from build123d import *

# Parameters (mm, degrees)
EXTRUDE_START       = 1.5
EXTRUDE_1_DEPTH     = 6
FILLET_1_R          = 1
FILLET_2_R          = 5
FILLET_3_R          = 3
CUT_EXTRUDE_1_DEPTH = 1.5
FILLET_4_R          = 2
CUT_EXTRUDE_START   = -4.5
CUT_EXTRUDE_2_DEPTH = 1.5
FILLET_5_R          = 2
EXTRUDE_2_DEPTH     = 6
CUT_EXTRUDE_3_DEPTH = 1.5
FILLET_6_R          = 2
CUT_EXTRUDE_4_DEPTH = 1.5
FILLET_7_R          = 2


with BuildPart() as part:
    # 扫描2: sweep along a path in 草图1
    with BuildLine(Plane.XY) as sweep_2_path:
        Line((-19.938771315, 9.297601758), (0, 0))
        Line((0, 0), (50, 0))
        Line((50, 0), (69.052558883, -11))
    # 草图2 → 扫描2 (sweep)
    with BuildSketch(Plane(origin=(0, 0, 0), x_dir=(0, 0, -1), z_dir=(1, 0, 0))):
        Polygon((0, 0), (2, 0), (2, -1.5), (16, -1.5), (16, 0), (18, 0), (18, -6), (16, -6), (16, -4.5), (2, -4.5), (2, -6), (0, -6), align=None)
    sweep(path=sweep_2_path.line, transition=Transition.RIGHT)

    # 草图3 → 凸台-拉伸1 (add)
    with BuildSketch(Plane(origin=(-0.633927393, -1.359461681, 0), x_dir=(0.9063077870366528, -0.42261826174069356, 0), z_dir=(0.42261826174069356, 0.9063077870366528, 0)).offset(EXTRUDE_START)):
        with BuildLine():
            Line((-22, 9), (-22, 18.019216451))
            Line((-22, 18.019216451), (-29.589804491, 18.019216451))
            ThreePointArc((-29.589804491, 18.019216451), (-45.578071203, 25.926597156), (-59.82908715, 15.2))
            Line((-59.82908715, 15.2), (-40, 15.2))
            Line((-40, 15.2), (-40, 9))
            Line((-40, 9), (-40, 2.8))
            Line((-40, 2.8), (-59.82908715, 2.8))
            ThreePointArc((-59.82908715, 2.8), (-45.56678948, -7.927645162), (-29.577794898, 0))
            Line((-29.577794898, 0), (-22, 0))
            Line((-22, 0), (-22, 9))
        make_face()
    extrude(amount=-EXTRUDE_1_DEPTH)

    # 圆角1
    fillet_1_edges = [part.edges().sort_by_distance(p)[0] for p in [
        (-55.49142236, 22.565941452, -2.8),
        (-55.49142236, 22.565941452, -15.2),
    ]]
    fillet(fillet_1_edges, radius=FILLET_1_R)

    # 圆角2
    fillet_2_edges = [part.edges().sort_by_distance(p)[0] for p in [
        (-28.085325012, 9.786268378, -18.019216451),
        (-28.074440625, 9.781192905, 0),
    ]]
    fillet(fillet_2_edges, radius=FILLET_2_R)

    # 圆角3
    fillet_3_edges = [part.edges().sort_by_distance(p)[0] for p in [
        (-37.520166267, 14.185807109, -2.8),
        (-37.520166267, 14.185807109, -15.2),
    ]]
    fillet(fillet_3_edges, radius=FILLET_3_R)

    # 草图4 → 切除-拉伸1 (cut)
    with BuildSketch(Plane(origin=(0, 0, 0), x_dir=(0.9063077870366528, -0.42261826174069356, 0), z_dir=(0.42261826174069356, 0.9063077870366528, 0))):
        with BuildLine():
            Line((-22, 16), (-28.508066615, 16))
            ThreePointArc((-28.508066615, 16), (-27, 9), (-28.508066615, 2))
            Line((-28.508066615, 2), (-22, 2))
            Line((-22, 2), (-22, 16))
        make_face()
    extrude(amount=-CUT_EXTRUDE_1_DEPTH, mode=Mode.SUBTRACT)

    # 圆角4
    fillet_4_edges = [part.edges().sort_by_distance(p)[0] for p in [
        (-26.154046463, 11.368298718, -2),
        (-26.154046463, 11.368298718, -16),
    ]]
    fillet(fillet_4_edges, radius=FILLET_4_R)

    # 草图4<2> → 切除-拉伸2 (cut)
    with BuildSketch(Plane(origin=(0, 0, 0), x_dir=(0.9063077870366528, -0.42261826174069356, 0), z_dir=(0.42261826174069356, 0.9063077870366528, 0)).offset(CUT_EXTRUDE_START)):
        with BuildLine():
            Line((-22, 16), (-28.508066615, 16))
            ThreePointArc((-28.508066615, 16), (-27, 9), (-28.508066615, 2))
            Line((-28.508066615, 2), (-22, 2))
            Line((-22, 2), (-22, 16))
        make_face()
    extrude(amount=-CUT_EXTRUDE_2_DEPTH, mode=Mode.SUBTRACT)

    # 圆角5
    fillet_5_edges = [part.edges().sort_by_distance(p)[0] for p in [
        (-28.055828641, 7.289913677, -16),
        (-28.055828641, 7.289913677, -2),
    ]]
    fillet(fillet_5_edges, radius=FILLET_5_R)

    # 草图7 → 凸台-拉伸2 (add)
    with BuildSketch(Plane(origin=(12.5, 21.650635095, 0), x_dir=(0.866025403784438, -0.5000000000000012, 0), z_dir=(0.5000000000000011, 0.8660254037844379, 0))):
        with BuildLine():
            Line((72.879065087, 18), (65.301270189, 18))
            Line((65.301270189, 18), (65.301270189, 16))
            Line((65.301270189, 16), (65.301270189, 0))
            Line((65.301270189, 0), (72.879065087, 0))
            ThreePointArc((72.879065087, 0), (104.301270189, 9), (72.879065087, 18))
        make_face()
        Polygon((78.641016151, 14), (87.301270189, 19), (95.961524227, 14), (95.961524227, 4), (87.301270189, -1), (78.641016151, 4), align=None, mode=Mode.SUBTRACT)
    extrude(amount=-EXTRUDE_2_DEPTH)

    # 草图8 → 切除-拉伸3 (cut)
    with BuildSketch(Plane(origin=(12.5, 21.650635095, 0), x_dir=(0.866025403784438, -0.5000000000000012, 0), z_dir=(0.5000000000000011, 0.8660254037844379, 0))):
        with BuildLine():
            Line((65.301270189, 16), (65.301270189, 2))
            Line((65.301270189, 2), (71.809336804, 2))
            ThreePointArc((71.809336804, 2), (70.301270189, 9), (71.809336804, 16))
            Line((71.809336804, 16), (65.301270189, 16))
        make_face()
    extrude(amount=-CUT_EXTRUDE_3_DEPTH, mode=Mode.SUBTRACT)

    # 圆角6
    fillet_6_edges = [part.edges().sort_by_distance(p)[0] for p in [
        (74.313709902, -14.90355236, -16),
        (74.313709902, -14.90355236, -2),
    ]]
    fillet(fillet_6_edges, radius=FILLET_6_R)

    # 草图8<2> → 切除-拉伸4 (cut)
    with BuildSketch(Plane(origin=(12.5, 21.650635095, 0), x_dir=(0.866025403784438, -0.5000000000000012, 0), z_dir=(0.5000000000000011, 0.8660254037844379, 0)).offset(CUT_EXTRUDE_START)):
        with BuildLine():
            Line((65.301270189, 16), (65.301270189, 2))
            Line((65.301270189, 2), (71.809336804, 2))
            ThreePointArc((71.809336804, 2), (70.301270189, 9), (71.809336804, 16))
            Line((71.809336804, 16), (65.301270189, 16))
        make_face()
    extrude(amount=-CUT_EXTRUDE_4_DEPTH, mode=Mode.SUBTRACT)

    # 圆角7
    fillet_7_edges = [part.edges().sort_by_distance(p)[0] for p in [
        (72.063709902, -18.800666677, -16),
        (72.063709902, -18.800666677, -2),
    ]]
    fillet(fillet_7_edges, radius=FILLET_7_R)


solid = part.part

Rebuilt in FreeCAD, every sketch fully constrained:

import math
import FreeCAD as App
import Part
import Sketcher
from FreeCAD import Vector
Q = App.Units.Quantity


def edges_at(feature, points):
    """Names of the edges that pass closest to the given points."""
    edges = feature.Shape.Edges
    near = lambda p: min(range(len(edges)), key=lambda i: edges[i].distToShape(Part.Vertex(*p))[0])
    return sorted({f"Edge{near(p) + 1}" for p in points})

doc = App.newDocument("Part")
body = doc.addObject("PartDesign::Body", "Body")

# Sketch on YZ plane
sketch1 = body.newObject("Sketcher::SketchObject", "Sketch")
sketch1.AttachmentSupport = (doc.getObject("YZ_Plane"), [""])
sketch1.MapMode = "FlatFace"
sketch1.addGeometry(Part.LineSegment(Vector(0, -2, 0), Vector(0, 0, 0)), False)
sketch1.addGeometry(Part.LineSegment(Vector(0, 0, 0), Vector(-6, 0, 0)), False)
sketch1.addGeometry(Part.LineSegment(Vector(-6, 0, 0), Vector(-6, -2, 0)), False)
sketch1.addGeometry(Part.LineSegment(Vector(-6, -2, 0), Vector(-4.5, -2, 0)), False)
sketch1.addGeometry(Part.LineSegment(Vector(-4.5, -2, 0), Vector(-4.5, -16, 0)), False)
sketch1.addGeometry(Part.LineSegment(Vector(-4.5, -16, 0), Vector(-6, -16, 0)), False)
sketch1.addGeometry(Part.LineSegment(Vector(-6, -16, 0), Vector(-6, -18, 0)), False)
sketch1.addGeometry(Part.LineSegment(Vector(-6, -18, 0), Vector(0, -18, 0)), False)
sketch1.addGeometry(Part.LineSegment(Vector(0, -18, 0), Vector(0, -16, 0)), False)
sketch1.addGeometry(Part.LineSegment(Vector(0, -16, 0), Vector(-1.5, -16, 0)), False)
sketch1.addGeometry(Part.LineSegment(Vector(-1.5, -16, 0), Vector(-1.5, -2, 0)), False)
sketch1.addGeometry(Part.LineSegment(Vector(-1.5, -2, 0), Vector(0, -2, 0)), False)
sketch1.addConstraint(Sketcher.Constraint("Coincident", 0, 2, 1, 1))
sketch1.addConstraint(Sketcher.Constraint("Coincident", 1, 2, 2, 1))
sketch1.addConstraint(Sketcher.Constraint("Coincident", 2, 2, 3, 1))
sketch1.addConstraint(Sketcher.Constraint("Coincident", 3, 2, 4, 1))
sketch1.addConstraint(Sketcher.Constraint("Coincident", 4, 2, 5, 1))
sketch1.addConstraint(Sketcher.Constraint("Coincident", 5, 2, 6, 1))
sketch1.addConstraint(Sketcher.Constraint("Coincident", 6, 2, 7, 1))
sketch1.addConstraint(Sketcher.Constraint("Coincident", 7, 2, 8, 1))
sketch1.addConstraint(Sketcher.Constraint("Coincident", 8, 2, 9, 1))
sketch1.addConstraint(Sketcher.Constraint("Coincident", 9, 2, 10, 1))
sketch1.addConstraint(Sketcher.Constraint("Coincident", 10, 2, 11, 1))
sketch1.addConstraint(Sketcher.Constraint("Coincident", 11, 2, 0, 1))
sketch1.addConstraint(Sketcher.Constraint("Vertical", 0))
sketch1.addConstraint(Sketcher.Constraint("Horizontal", 1))
sketch1.addConstraint(Sketcher.Constraint("Vertical", 2))
sketch1.addConstraint(Sketcher.Constraint("Horizontal", 3))
sketch1.addConstraint(Sketcher.Constraint("Vertical", 4))
sketch1.addConstraint(Sketcher.Constraint("Horizontal", 5))
sketch1.addConstraint(Sketcher.Constraint("Vertical", 6))
sketch1.addConstraint(Sketcher.Constraint("Horizontal", 7))
sketch1.addConstraint(Sketcher.Constraint("Vertical", 8))
sketch1.addConstraint(Sketcher.Constraint("Horizontal", 9))
sketch1.addConstraint(Sketcher.Constraint("Vertical", 10))
sketch1.addConstraint(Sketcher.Constraint("Horizontal", 11))
sketch1.addConstraint(Sketcher.Constraint("Coincident", 0, 2, -1, 1))
sketch1.addConstraint(Sketcher.Constraint("PointOnObject", 7, 2, -2))
sketch1.addConstraint(Sketcher.Constraint("Horizontal", 5, 2, 8, 2))
sketch1.addConstraint(Sketcher.Constraint("Horizontal", 3, 2, 10, 2))
sketch1.addConstraint(Sketcher.Constraint("Vertical", 2, 2, 5, 2))
sketch1.addConstraint(Sketcher.Constraint("Equal", 5, 9))
sketch1.addConstraint(Sketcher.Constraint("Equal", 2, 6))
sketch1.addConstraint(Sketcher.Constraint("DistanceX", 1, 2, 1, 1, 6.0))
sketch1.addConstraint(Sketcher.Constraint("DistanceY", 0, 1, 0, 2, 2.0))
sketch1.addConstraint(Sketcher.Constraint("DistanceY", 4, 2, 4, 1, 14.0))
sketch1.addConstraint(Sketcher.Constraint("DistanceX", 3, 1, 3, 2, 1.5))

# Sketch on XY plane
sketch2 = body.newObject("Sketcher::SketchObject", "Sketch001")
sketch2.AttachmentSupport = (doc.getObject("XY_Plane"), [""])
sketch2.MapMode = "FlatFace"
sketch2.addGeometry(Part.LineSegment(Vector(-19.938771, 9.297602, 0), Vector(0, 0, 0)), False)
sketch2.addGeometry(Part.LineSegment(Vector(0, 0, 0), Vector(50, 0, 0)), False)
sketch2.addGeometry(Part.LineSegment(Vector(50, 0, 0), Vector(69.052559, -11, 0)), False)
sketch2.addConstraint(Sketcher.Constraint("Coincident", 0, 2, 1, 1))
sketch2.addConstraint(Sketcher.Constraint("Coincident", 1, 2, 2, 1))
sketch2.addConstraint(Sketcher.Constraint("Horizontal", 1))
sketch2.addConstraint(Sketcher.Constraint("Coincident", 0, 2, -1, 1))
sketch2.addConstraint(Sketcher.Constraint("Equal", 0, 2))
sketch2.addConstraint(Sketcher.Constraint("DistanceX", 1, 1, 1, 2, 50.0))
sketch2.addConstraint(Sketcher.Constraint("Angle", 0, Q("-25 deg")))
sketch2.addConstraint(Sketcher.Constraint("Angle", 2, Q("-30 deg")))
sketch2.addConstraint(Sketcher.Constraint("Distance", 0, 22.0))
doc.recompute()

additivepipe = body.newObject("PartDesign::AdditivePipe", "AdditivePipe")
additivepipe.Profile = sketch1
additivepipe.Spine = (sketch2, ["Edge1", "Edge2", "Edge3"])
additivepipe.Transition = "Right corner"

# Sketch on an angled plane
sketch3 = body.newObject("Sketcher::SketchObject", "Sketch002")
sketch3.Placement = App.Placement(Vector(0, 0, 0), App.Rotation(Vector(0.906307787, -0.422618262, 0), Vector(0, 0, -1), Vector(0.422618262, 0.906307787, 0), "ZXY"))
sketch3.addGeometry(Part.LineSegment(Vector(-22, 18.019216, 0), Vector(-29.589804, 18.019216, 0)), False)
sketch3.addGeometry(Part.ArcOfCircle(Part.Circle(Vector(-44, 9, 0), Vector(0, 0, 1), 17), math.radians(32.042093), math.radians(158.610517)), False)
sketch3.addGeometry(Part.LineSegment(Vector(-59.829087, 15.2, 0), Vector(-40, 15.2, 0)), False)
sketch3.addGeometry(Part.LineSegment(Vector(-40, 15.2, 0), Vector(-40, 2.8, 0)), False)
sketch3.addGeometry(Part.LineSegment(Vector(-40, 2.8, 0), Vector(-59.829087, 2.8, 0)), False)
sketch3.addGeometry(Part.ArcOfCircle(Part.Circle(Vector(-44, 9, 0), Vector(0, 0, 1), 17), math.radians(-158.610517), math.radians(-31.965719)), False)
sketch3.addGeometry(Part.LineSegment(Vector(-29.577795, 0, 0), Vector(-22, 0, 0)), False)
sketch3.addGeometry(Part.LineSegment(Vector(-22, 0, 0), Vector(-22, 18.019216, 0)), False)
sketch3.addConstraint(Sketcher.Constraint("Coincident", 0, 2, 1, 1))
sketch3.addConstraint(Sketcher.Constraint("Coincident", 1, 2, 2, 1))
sketch3.addConstraint(Sketcher.Constraint("Coincident", 2, 2, 3, 1))
sketch3.addConstraint(Sketcher.Constraint("Coincident", 3, 2, 4, 1))
sketch3.addConstraint(Sketcher.Constraint("Coincident", 4, 2, 5, 1))
sketch3.addConstraint(Sketcher.Constraint("Coincident", 5, 2, 6, 1))
sketch3.addConstraint(Sketcher.Constraint("Coincident", 6, 2, 7, 1))
sketch3.addConstraint(Sketcher.Constraint("Coincident", 7, 2, 0, 1))
sketch3.addConstraint(Sketcher.Constraint("Horizontal", 0))
sketch3.addConstraint(Sketcher.Constraint("Horizontal", 2))
sketch3.addConstraint(Sketcher.Constraint("Vertical", 3))
sketch3.addConstraint(Sketcher.Constraint("Horizontal", 4))
sketch3.addConstraint(Sketcher.Constraint("Horizontal", 6))
sketch3.addConstraint(Sketcher.Constraint("Vertical", 7))
sketch3.addConstraint(Sketcher.Constraint("Coincident", 5, 3, 1, 3))
sketch3.addConstraint(Sketcher.Constraint("Equal", 1, 5))
sketch3.addConstraint(Sketcher.Constraint("PointOnObject", 5, 2, -1))
sketch3.addConstraint(Sketcher.Constraint("Vertical", 1, 2, 4, 2))
sketch3.addConstraint(Sketcher.Constraint("Radius", 1, 17.0))
sketch3.addConstraint(Sketcher.Constraint("DistanceY", 3, 2, 3, 1, 12.4))
sketch3.addConstraint(Sketcher.Constraint("DistanceX", 1, 3, -1, 1, 44.0))
sketch3.addConstraint(Sketcher.Constraint("DistanceY", -1, 1, 1, 3, 9.0))
sketch3.addConstraint(Sketcher.Constraint("DistanceX", 2, 2, -1, 1, 40.0))
sketch3.addConstraint(Sketcher.Constraint("DistanceX", 6, 2, -1, 1, 22.0))
sketch3.addConstraint(Sketcher.Constraint("DistanceX", 0, 2, 0, 1, 7.589804))
pad1 = body.newObject("PartDesign::Pad", "Pad")
pad1.Profile = sketch3
pad1.Length = 6
pad1.Reversed = True
doc.recompute()

fillet = body.newObject("PartDesign::Fillet", "Fillet")
fillet.Base = (pad1, edges_at(pad1, [(-55.491, 22.566, -2.8), (-55.491, 22.566, -15.2)]))
fillet.Radius = 1
doc.recompute()

fillet2 = body.newObject("PartDesign::Fillet", "Fillet001")
fillet2.Base = (fillet, edges_at(fillet, [(-28.085, 9.786, -18.019), (-28.074, 9.781, 0)]))
fillet2.Radius = 5
doc.recompute()

fillet3 = body.newObject("PartDesign::Fillet", "Fillet002")
fillet3.Base = (fillet2, edges_at(fillet2, [(-37.52, 14.186, -2.8), (-37.52, 14.186, -15.2)]))
fillet3.Radius = 3

# Sketch on an angled plane
sketch4 = body.newObject("Sketcher::SketchObject", "Sketch003")
sketch4.Placement = App.Placement(Vector(0, 0, 0), App.Rotation(Vector(0.906307787, -0.422618262, 0), Vector(0, 0, -1), Vector(0.422618262, 0.906307787, 0), "ZXY"))
sketch4.addGeometry(Part.LineSegment(Vector(-22, 16, 0), Vector(-28.508067, 16, 0)), False)
sketch4.addGeometry(Part.ArcOfCircle(Part.Circle(Vector(-44, 9, 0), Vector(0, 0, 1), 17), math.radians(-24.315739), math.radians(24.315739)), False)
sketch4.addGeometry(Part.LineSegment(Vector(-28.508067, 2, 0), Vector(-22, 2, 0)), False)
sketch4.addGeometry(Part.LineSegment(Vector(-22, 2, 0), Vector(-22, 16, 0)), False)
sketch4.addConstraint(Sketcher.Constraint("Coincident", 0, 2, 1, 2))
sketch4.addConstraint(Sketcher.Constraint("Coincident", 1, 1, 2, 1))
sketch4.addConstraint(Sketcher.Constraint("Coincident", 2, 2, 3, 1))
sketch4.addConstraint(Sketcher.Constraint("Coincident", 3, 2, 0, 1))
sketch4.addConstraint(Sketcher.Constraint("Horizontal", 0))
sketch4.addConstraint(Sketcher.Constraint("Horizontal", 2))
sketch4.addConstraint(Sketcher.Constraint("Vertical", 3))
sketch4.addConstraint(Sketcher.Constraint("Vertical", 0, 2, 1, 1))
sketch4.addConstraint(Sketcher.Constraint("Radius", 1, 17.0))
sketch4.addConstraint(Sketcher.Constraint("DistanceY", 3, 1, 3, 2, 14.0))
sketch4.addConstraint(Sketcher.Constraint("DistanceX", 1, 3, -1, 1, 44.0))
sketch4.addConstraint(Sketcher.Constraint("DistanceY", -1, 1, 1, 3, 9.0))
sketch4.addConstraint(Sketcher.Constraint("DistanceX", 2, 2, -1, 1, 22.0))
pocket1 = body.newObject("PartDesign::Pocket", "Pocket")
pocket1.Profile = sketch4
pocket1.Length = 1.5
doc.recompute()

fillet4 = body.newObject("PartDesign::Fillet", "Fillet003")
fillet4.Base = (pocket1, edges_at(pocket1, [(-26.154, 11.368, -2), (-26.154, 11.368, -16)]))
fillet4.Radius = 2

# Sketch on an angled plane
sketch5 = body.newObject("Sketcher::SketchObject", "Sketch004")
sketch5.Placement = App.Placement(Vector(-1.901782, -4.078385, 0), App.Rotation(Vector(0.906307787, -0.422618262, 0), Vector(0, 0, -1), Vector(0.422618262, 0.906307787, 0), "ZXY"))
sketch5.addGeometry(Part.LineSegment(Vector(-22, 16, 0), Vector(-28.508067, 16, 0)), False)
sketch5.addGeometry(Part.ArcOfCircle(Part.Circle(Vector(-44, 9, 0), Vector(0, 0, 1), 17), math.radians(-24.315739), math.radians(24.315739)), False)
sketch5.addGeometry(Part.LineSegment(Vector(-28.508067, 2, 0), Vector(-22, 2, 0)), False)
sketch5.addGeometry(Part.LineSegment(Vector(-22, 2, 0), Vector(-22, 16, 0)), False)
sketch5.addConstraint(Sketcher.Constraint("Coincident", 0, 2, 1, 2))
sketch5.addConstraint(Sketcher.Constraint("Coincident", 1, 1, 2, 1))
sketch5.addConstraint(Sketcher.Constraint("Coincident", 2, 2, 3, 1))
sketch5.addConstraint(Sketcher.Constraint("Coincident", 3, 2, 0, 1))
sketch5.addConstraint(Sketcher.Constraint("Horizontal", 0))
sketch5.addConstraint(Sketcher.Constraint("Horizontal", 2))
sketch5.addConstraint(Sketcher.Constraint("Vertical", 3))
sketch5.addConstraint(Sketcher.Constraint("Vertical", 0, 2, 1, 1))
sketch5.addConstraint(Sketcher.Constraint("Radius", 1, 17.0))
sketch5.addConstraint(Sketcher.Constraint("DistanceY", 3, 1, 3, 2, 14.0))
sketch5.addConstraint(Sketcher.Constraint("DistanceX", 1, 3, -1, 1, 44.0))
sketch5.addConstraint(Sketcher.Constraint("DistanceY", -1, 1, 1, 3, 9.0))
sketch5.addConstraint(Sketcher.Constraint("DistanceX", 2, 2, -1, 1, 22.0))
pocket2 = body.newObject("PartDesign::Pocket", "Pocket001")
pocket2.Profile = sketch5
pocket2.Length = 1.5
doc.recompute()

fillet5 = body.newObject("PartDesign::Fillet", "Fillet004")
fillet5.Base = (pocket2, edges_at(pocket2, [(-28.056, 7.29, -16), (-28.056, 7.29, -2)]))
fillet5.Radius = 2

# Sketch on an angled plane
sketch6 = body.newObject("Sketcher::SketchObject", "Sketch005")
sketch6.Placement = App.Placement(Vector(12.5, 21.650635, 0), App.Rotation(Vector(0.866025404, -0.5, 0), Vector(0, 0, -1), Vector(0.5, 0.866025404, 0), "ZXY"))
sketch6.addGeometry(Part.LineSegment(Vector(72.879065, 18, 0), Vector(65.30127, 18, 0)), False)
sketch6.addGeometry(Part.LineSegment(Vector(65.30127, 18, 0), Vector(65.30127, 0, 0)), False)
sketch6.addGeometry(Part.LineSegment(Vector(65.30127, 0, 0), Vector(72.879065, 0, 0)), False)
sketch6.addGeometry(Part.ArcOfCircle(Part.Circle(Vector(87.30127, 9, 0), Vector(0, 0, 1), 17), math.radians(-148.034281), math.radians(148.034281)), False)
sketch6.addGeometry(Part.LineSegment(Vector(78.641016, 4, 0), Vector(78.641016, 14, 0)), False)
sketch6.addGeometry(Part.LineSegment(Vector(78.641016, 14, 0), Vector(87.30127, 19, 0)), False)
sketch6.addGeometry(Part.LineSegment(Vector(87.30127, 19, 0), Vector(95.961524, 14, 0)), False)
sketch6.addGeometry(Part.LineSegment(Vector(95.961524, 14, 0), Vector(95.961524, 4, 0)), False)
sketch6.addGeometry(Part.LineSegment(Vector(95.961524, 4, 0), Vector(87.30127, -1, 0)), False)
sketch6.addGeometry(Part.LineSegment(Vector(87.30127, -1, 0), Vector(78.641016, 4, 0)), False)
sketch6.addConstraint(Sketcher.Constraint("Coincident", 0, 2, 1, 1))
sketch6.addConstraint(Sketcher.Constraint("Coincident", 1, 2, 2, 1))
sketch6.addConstraint(Sketcher.Constraint("Coincident", 2, 2, 3, 1))
sketch6.addConstraint(Sketcher.Constraint("Coincident", 3, 2, 0, 1))
sketch6.addConstraint(Sketcher.Constraint("Coincident", 4, 2, 5, 1))
sketch6.addConstraint(Sketcher.Constraint("Coincident", 5, 2, 6, 1))
sketch6.addConstraint(Sketcher.Constraint("Coincident", 6, 2, 7, 1))
sketch6.addConstraint(Sketcher.Constraint("Coincident", 7, 2, 8, 1))
sketch6.addConstraint(Sketcher.Constraint("Coincident", 8, 2, 9, 1))
sketch6.addConstraint(Sketcher.Constraint("Coincident", 9, 2, 4, 1))
sketch6.addConstraint(Sketcher.Constraint("Horizontal", 0))
sketch6.addConstraint(Sketcher.Constraint("Vertical", 1))
sketch6.addConstraint(Sketcher.Constraint("Horizontal", 2))
sketch6.addConstraint(Sketcher.Constraint("Vertical", 4))
sketch6.addConstraint(Sketcher.Constraint("Vertical", 7))
sketch6.addConstraint(Sketcher.Constraint("PointOnObject", 1, 2, -1))
sketch6.addConstraint(Sketcher.Constraint("Parallel", 5, 8))
sketch6.addConstraint(Sketcher.Constraint("Parallel", 6, 9))
sketch6.addConstraint(Sketcher.Constraint("Horizontal", 4, 2, 6, 2))
sketch6.addConstraint(Sketcher.Constraint("Horizontal", 7, 2, 9, 2))
sketch6.addConstraint(Sketcher.Constraint("Vertical", 2, 2, 3, 2))
sketch6.addConstraint(Sketcher.Constraint("Vertical", 3, 3, 5, 2))
sketch6.addConstraint(Sketcher.Constraint("Vertical", 5, 2, 8, 2))
sketch6.addConstraint(Sketcher.Constraint("Radius", 3, 17.0))
sketch6.addConstraint(Sketcher.Constraint("DistanceY", 1, 2, 1, 1, 18.0))
sketch6.addConstraint(Sketcher.Constraint("DistanceY", 4, 1, 4, 2, 10.0))
sketch6.addConstraint(Sketcher.Constraint("Angle", 5, Q("30 deg")))
sketch6.addConstraint(Sketcher.Constraint("Distance", 5, 10.0))
sketch6.addConstraint(Sketcher.Constraint("DistanceY", -1, 1, 4, 2, 14.0))
sketch6.addConstraint(Sketcher.Constraint("DistanceX", 0, 2, 3, 3, 22.0))
sketch6.addConstraint(Sketcher.Constraint("DistanceX", -1, 1, 3, 3, 87.30127))
pad2 = body.newObject("PartDesign::Pad", "Pad001")
pad2.Profile = sketch6
pad2.Length = 6
pad2.Reversed = True

# Sketch on an angled plane
sketch7 = body.newObject("Sketcher::SketchObject", "Sketch006")
sketch7.Placement = App.Placement(Vector(12.5, 21.650635, 0), App.Rotation(Vector(0.866025404, -0.5, 0), Vector(0, 0, -1), Vector(0.5, 0.866025404, 0), "ZXY"))
sketch7.addGeometry(Part.LineSegment(Vector(65.30127, 16, 0), Vector(65.30127, 2, 0)), False)
sketch7.addGeometry(Part.LineSegment(Vector(65.30127, 2, 0), Vector(71.809337, 2, 0)), False)
sketch7.addGeometry(Part.ArcOfCircle(Part.Circle(Vector(87.30127, 9, 0), Vector(0, 0, 1), 17), math.radians(155.684261), math.radians(204.315739)), False)
sketch7.addGeometry(Part.LineSegment(Vector(71.809337, 16, 0), Vector(65.30127, 16, 0)), False)
sketch7.addConstraint(Sketcher.Constraint("Coincident", 0, 2, 1, 1))
sketch7.addConstraint(Sketcher.Constraint("Coincident", 1, 2, 2, 2))
sketch7.addConstraint(Sketcher.Constraint("Coincident", 2, 1, 3, 1))
sketch7.addConstraint(Sketcher.Constraint("Coincident", 3, 2, 0, 1))
sketch7.addConstraint(Sketcher.Constraint("Vertical", 0))
sketch7.addConstraint(Sketcher.Constraint("Horizontal", 1))
sketch7.addConstraint(Sketcher.Constraint("Horizontal", 3))
sketch7.addConstraint(Sketcher.Constraint("Vertical", 1, 2, 2, 1))
sketch7.addConstraint(Sketcher.Constraint("Radius", 2, 17.0))
sketch7.addConstraint(Sketcher.Constraint("DistanceY", 0, 2, 0, 1, 14.0))
sketch7.addConstraint(Sketcher.Constraint("DistanceY", -1, 1, 2, 3, 9.0))
sketch7.addConstraint(Sketcher.Constraint("DistanceX", 0, 2, 2, 3, 22.0))
sketch7.addConstraint(Sketcher.Constraint("DistanceX", -1, 1, 2, 3, 87.30127))
pocket3 = body.newObject("PartDesign::Pocket", "Pocket002")
pocket3.Profile = sketch7
pocket3.Length = 1.5
doc.recompute()

fillet6 = body.newObject("PartDesign::Fillet", "Fillet005")
fillet6.Base = (pocket3, edges_at(pocket3, [(74.314, -14.904, -16), (74.314, -14.904, -2)]))
fillet6.Radius = 2

# Sketch on an angled plane
sketch8 = body.newObject("Sketcher::SketchObject", "Sketch007")
sketch8.Placement = App.Placement(Vector(10.25, 17.753521, 0), App.Rotation(Vector(0.866025404, -0.5, 0), Vector(0, 0, -1), Vector(0.5, 0.866025404, 0), "ZXY"))
sketch8.addGeometry(Part.LineSegment(Vector(65.30127, 16, 0), Vector(65.30127, 2, 0)), False)
sketch8.addGeometry(Part.LineSegment(Vector(65.30127, 2, 0), Vector(71.809337, 2, 0)), False)
sketch8.addGeometry(Part.ArcOfCircle(Part.Circle(Vector(87.30127, 9, 0), Vector(0, 0, 1), 17), math.radians(155.684261), math.radians(204.315739)), False)
sketch8.addGeometry(Part.LineSegment(Vector(71.809337, 16, 0), Vector(65.30127, 16, 0)), False)
sketch8.addConstraint(Sketcher.Constraint("Coincident", 0, 2, 1, 1))
sketch8.addConstraint(Sketcher.Constraint("Coincident", 1, 2, 2, 2))
sketch8.addConstraint(Sketcher.Constraint("Coincident", 2, 1, 3, 1))
sketch8.addConstraint(Sketcher.Constraint("Coincident", 3, 2, 0, 1))
sketch8.addConstraint(Sketcher.Constraint("Vertical", 0))
sketch8.addConstraint(Sketcher.Constraint("Horizontal", 1))
sketch8.addConstraint(Sketcher.Constraint("Horizontal", 3))
sketch8.addConstraint(Sketcher.Constraint("Vertical", 1, 2, 2, 1))
sketch8.addConstraint(Sketcher.Constraint("Radius", 2, 17.0))
sketch8.addConstraint(Sketcher.Constraint("DistanceY", 0, 2, 0, 1, 14.0))
sketch8.addConstraint(Sketcher.Constraint("DistanceY", -1, 1, 2, 3, 9.0))
sketch8.addConstraint(Sketcher.Constraint("DistanceX", 0, 2, 2, 3, 22.0))
sketch8.addConstraint(Sketcher.Constraint("DistanceX", -1, 1, 2, 3, 87.30127))
pocket4 = body.newObject("PartDesign::Pocket", "Pocket003")
pocket4.Profile = sketch8
pocket4.Length = 1.5
doc.recompute()

fillet7 = body.newObject("PartDesign::Fillet", "Fillet006")
fillet7.Base = (pocket4, edges_at(pocket4, [(72.064, -18.801, -16), (72.064, -18.801, -2)]))
fillet7.Radius = 2

doc.recompute()
